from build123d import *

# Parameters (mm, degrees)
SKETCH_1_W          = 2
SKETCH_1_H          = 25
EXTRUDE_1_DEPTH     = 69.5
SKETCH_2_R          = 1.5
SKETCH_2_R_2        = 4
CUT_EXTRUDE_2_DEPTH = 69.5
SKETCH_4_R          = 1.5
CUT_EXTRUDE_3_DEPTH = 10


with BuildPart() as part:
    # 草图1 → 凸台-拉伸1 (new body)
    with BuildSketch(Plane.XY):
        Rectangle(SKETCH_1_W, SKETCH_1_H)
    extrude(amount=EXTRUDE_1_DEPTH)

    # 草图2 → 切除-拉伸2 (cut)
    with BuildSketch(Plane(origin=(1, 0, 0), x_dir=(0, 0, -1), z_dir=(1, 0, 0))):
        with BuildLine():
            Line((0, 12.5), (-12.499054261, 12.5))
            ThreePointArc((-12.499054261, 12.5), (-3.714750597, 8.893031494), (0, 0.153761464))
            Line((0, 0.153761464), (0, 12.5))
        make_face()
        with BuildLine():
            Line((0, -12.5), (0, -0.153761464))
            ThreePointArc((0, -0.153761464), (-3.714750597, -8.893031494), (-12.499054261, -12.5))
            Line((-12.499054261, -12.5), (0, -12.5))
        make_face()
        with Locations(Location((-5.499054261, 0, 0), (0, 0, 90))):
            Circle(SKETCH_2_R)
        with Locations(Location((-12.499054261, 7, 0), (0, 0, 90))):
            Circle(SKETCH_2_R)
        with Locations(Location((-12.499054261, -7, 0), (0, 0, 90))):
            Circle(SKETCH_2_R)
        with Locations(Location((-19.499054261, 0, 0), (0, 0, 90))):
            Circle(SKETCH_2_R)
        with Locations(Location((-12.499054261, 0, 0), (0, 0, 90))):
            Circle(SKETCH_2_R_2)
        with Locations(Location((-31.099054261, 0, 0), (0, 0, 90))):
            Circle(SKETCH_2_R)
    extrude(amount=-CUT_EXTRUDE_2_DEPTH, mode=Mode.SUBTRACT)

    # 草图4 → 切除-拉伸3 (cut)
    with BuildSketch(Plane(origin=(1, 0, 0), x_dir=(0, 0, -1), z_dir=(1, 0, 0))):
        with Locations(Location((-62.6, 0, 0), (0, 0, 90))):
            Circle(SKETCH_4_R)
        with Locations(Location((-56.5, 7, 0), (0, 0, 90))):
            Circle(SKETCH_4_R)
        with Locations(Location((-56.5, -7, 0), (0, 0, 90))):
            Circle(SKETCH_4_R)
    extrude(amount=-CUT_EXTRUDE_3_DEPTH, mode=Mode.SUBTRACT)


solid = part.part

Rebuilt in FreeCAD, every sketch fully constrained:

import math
import FreeCAD as App
import Part
import Sketcher

V = App.Vector
Q = App.Units.Quantity


def add_polygon(sketch, points):
    """Adds a closed chain of lines whose ends are joined by coincident constraints."""
    first, n = sketch.GeometryCount, len(points)
    for a, b in zip(points, points[1:] + points[:1]):
        sketch.addGeometry(Part.LineSegment(App.Vector(*a, 0), App.Vector(*b, 0)), False)
    for i in range(n):
        sketch.addConstraint(Sketcher.Constraint("Coincident", first + i, 2, first + (i + 1) % n, 1))

doc = App.newDocument("Part")
params = doc.addObject("Spreadsheet::Sheet", "Params")
for row, (alias, value) in enumerate([
    ("sketch1_width", "2 mm"),
    ("sketch1_height", "25 mm"),
    ("pad1_length", "69.5 mm"),
    ("sketch2_diameter", "3 mm"),
    ("sketch2_diameter2", "8 mm"),
    ("sketch2_radius", "12.5 mm"),
    ("pocket1_length", "69.5 mm"),
    ("sketch3_diameter", "3 mm"),
    ("pocket2_length", "10 mm"),
], start=1):
    params.set(f"A{row}", alias)
    params.set(f"B{row}", "=" + value)
    params.setAlias(f"B{row}", alias)

body = doc.addObject("PartDesign::Body", "Body")

# Sketch on XY plane
sketch1 = body.newObject("Sketcher::SketchObject", "Sketch")
sketch1.AttachmentSupport = (doc.getObject("XY_Plane"), [""])
sketch1.MapMode = "FlatFace"
add_polygon(sketch1, [(-1, 12.5), (-1, -12.5), (1, -12.5), (1, 12.5)])  # lines 0-3
sketch1.addConstraint([
    Sketcher.Constraint("Vertical", 0),
    Sketcher.Constraint("Horizontal", 1),
    Sketcher.Constraint("Vertical", 2),
    Sketcher.Constraint("Horizontal", 3),
    Sketcher.Constraint("Symmetric", 0, 2, 2, 2, -1, 1),
    Sketcher.Constraint("DistanceX", 1, 1, 1, 2, Q("2 mm")),
    Sketcher.Constraint("DistanceY", 0, 2, 0, 1, Q("25 mm")),
])
sketch1.setExpression("Constraints[9]", "Params.sketch1_width")
sketch1.setExpression("Constraints[10]", "Params.sketch1_height")
pad1 = body.newObject("PartDesign::Pad", "Pad")
pad1.Profile = sketch1
pad1.setExpression("Length", "Params.pad1_length")

# Sketch on YZ plane
sketch2 = body.newObject("Sketcher::SketchObject", "Sketch001")
sketch2.AttachmentSupport = (doc.getObject("YZ_Plane"), [""])
sketch2.MapMode = "FlatFace"
sketch2.AttachmentOffset = App.Placement(V(0, 0, 1), App.Rotation())
sketch2.addGeometry([
    Part.LineSegment(V(12.5, 0, 0), V(12.5, 12.499054, 0)),  # 0
    Part.ArcOfCircle(Part.Circle(V(0, 12.499054, 0), V(0, 0, 1), 12.5), math.radians(-89.295192), math.radians(0)),  # 1
    Part.LineSegment(V(0.153761, 0, 0), V(12.5, 0, 0)),  # 2
    Part.LineSegment(V(-12.5, 0, 0), V(-0.153761, 0, 0)),  # 3
    Part.ArcOfCircle(Part.Circle(V(0, 12.499054, 0), V(0, 0, 1), 12.5), math.radians(180), math.radians(269.295192)),  # 4
    Part.LineSegment(V(-12.5, 12.499054, 0), V(-12.5, 0, 0)),  # 5
    Part.Circle(V(0, 5.499054, 0), V(0, 0, 1), 1.5),  # 6
    Part.Circle(V(7, 12.499054, 0), V(0, 0, 1), 1.5),  # 7
    Part.Circle(V(-7, 12.499054, 0), V(0, 0, 1), 1.5),  # 8
    Part.Circle(V(0, 19.499054, 0), V(0, 0, 1), 1.5),  # 9
    Part.Circle(V(0, 12.499054, 0), V(0, 0, 1), 4),  # 10
    Part.Circle(V(0, 31.099054, 0), V(0, 0, 1), 1.5),  # 11
], False)
sketch2.addConstraint([
    Sketcher.Constraint("Tangent", 0, 2, 1, 2),
    Sketcher.Constraint("Coincident", 1, 1, 2, 1),
    Sketcher.Constraint("Coincident", 2, 2, 0, 1),
    Sketcher.Constraint("Coincident", 3, 2, 4, 2),
    Sketcher.Constraint("Tangent", 4, 1, 5, 1),
    Sketcher.Constraint("Coincident", 5, 2, 3, 1),
    Sketcher.Constraint("Vertical", 0),
    Sketcher.Constraint("Horizontal", 2),
    Sketcher.Constraint("Horizontal", 3),
    Sketcher.Constraint("Vertical", 5),
    Sketcher.Constraint("Coincident", 4, 3, 1, 3),
    Sketcher.Constraint("Coincident", 10, 3, 1, 3),
    Sketcher.Constraint("Equal", 1, 4),
    Sketcher.Constraint("Equal", 6, 7),
    Sketcher.Constraint("Equal", 7, 8),
    Sketcher.Constraint("Equal", 8, 9),
    Sketcher.Constraint("Equal", 9, 11),
    Sketcher.Constraint("Symmetric", 1, 1, 3, 2, -1, 1),
    Sketcher.Constraint("Symmetric", 7, 3, 8, 3, -2),
    Sketcher.Constraint("PointOnObject", 1, 3, -2),
    Sketcher.Constraint("PointOnObject", 6, 3, -2),
    Sketcher.Constraint("PointOnObject", 9, 3, -2),
    Sketcher.Constraint("PointOnObject", 11, 3, -2),
    Sketcher.Constraint("Horizontal", 4, 3, 7, 3),
    Sketcher.Constraint("Diameter", 6, Q("3 mm")),
    Sketcher.Constraint("Diameter", 10, Q("8 mm")),
    Sketcher.Constraint("Radius", 1, Q("12.5 mm")),
    Sketcher.Constraint("DistanceX", -1, 1, 7, 3, Q("7 mm")),
    Sketcher.Constraint("DistanceY", 6, 3, 1, 3, Q("7 mm")),
    Sketcher.Constraint("DistanceY", 1, 3, 9, 3, Q("7 mm")),
    Sketcher.Constraint("DistanceY", 9, 3, 11, 3, Q("11.6 mm")),
    Sketcher.Constraint("DistanceX", 2, 1, 2, 2, Q("12.346239 mm")),
])
sketch2.setExpression("Constraints[24]", "Params.sketch2_diameter")
sketch2.setExpression("Constraints[25]", "Params.sketch2_diameter2")
sketch2.setExpression("Constraints[26]", "Params.sketch2_radius")
pocket1 = body.newObject("PartDesign::Pocket", "Pocket")
pocket1.Profile = sketch2
pocket1.setExpression("Length", "Params.pocket1_length")

# Sketch on YZ plane
sketch3 = body.newObject("Sketcher::SketchObject", "Sketch002")
sketch3.AttachmentSupport = (doc.getObject("YZ_Plane"), [""])
sketch3.MapMode = "FlatFace"
sketch3.AttachmentOffset = App.Placement(V(0, 0, 1), App.Rotation())
sketch3.addGeometry([
    Part.Circle(V(0, 62.6, 0), V(0, 0, 1), 1.5),
    Part.Circle(V(7, 56.5, 0), V(0, 0, 1), 1.5),
    Part.Circle(V(-7, 56.5, 0), V(0, 0, 1), 1.5),
], False)
sketch3.addConstraint([
    Sketcher.Constraint("Equal", 0, 1),
    Sketcher.Constraint("Equal", 1, 2),
    Sketcher.Constraint("Symmetric", 1, 3, 2, 3, -2),
    Sketcher.Constraint("PointOnObject", 0, 3, -2),
    Sketcher.Constraint("Diameter", 0, Q("3 mm")),
    Sketcher.Constraint("DistanceX", -1, 1, 1, 3, Q("7 mm")),
    Sketcher.Constraint("DistanceY", -1, 1, 0, 3, Q("62.6 mm")),
    Sketcher.Constraint("DistanceY", -1, 1, 1, 3, Q("56.5 mm")),
])
sketch3.setExpression("Constraints[4]", "Params.sketch3_diameter")
pocket2 = body.newObject("PartDesign::Pocket", "Pocket001")
pocket2.Profile = sketch3
pocket2.setExpression("Length", "Params.pocket2_length")

doc.recompute()
